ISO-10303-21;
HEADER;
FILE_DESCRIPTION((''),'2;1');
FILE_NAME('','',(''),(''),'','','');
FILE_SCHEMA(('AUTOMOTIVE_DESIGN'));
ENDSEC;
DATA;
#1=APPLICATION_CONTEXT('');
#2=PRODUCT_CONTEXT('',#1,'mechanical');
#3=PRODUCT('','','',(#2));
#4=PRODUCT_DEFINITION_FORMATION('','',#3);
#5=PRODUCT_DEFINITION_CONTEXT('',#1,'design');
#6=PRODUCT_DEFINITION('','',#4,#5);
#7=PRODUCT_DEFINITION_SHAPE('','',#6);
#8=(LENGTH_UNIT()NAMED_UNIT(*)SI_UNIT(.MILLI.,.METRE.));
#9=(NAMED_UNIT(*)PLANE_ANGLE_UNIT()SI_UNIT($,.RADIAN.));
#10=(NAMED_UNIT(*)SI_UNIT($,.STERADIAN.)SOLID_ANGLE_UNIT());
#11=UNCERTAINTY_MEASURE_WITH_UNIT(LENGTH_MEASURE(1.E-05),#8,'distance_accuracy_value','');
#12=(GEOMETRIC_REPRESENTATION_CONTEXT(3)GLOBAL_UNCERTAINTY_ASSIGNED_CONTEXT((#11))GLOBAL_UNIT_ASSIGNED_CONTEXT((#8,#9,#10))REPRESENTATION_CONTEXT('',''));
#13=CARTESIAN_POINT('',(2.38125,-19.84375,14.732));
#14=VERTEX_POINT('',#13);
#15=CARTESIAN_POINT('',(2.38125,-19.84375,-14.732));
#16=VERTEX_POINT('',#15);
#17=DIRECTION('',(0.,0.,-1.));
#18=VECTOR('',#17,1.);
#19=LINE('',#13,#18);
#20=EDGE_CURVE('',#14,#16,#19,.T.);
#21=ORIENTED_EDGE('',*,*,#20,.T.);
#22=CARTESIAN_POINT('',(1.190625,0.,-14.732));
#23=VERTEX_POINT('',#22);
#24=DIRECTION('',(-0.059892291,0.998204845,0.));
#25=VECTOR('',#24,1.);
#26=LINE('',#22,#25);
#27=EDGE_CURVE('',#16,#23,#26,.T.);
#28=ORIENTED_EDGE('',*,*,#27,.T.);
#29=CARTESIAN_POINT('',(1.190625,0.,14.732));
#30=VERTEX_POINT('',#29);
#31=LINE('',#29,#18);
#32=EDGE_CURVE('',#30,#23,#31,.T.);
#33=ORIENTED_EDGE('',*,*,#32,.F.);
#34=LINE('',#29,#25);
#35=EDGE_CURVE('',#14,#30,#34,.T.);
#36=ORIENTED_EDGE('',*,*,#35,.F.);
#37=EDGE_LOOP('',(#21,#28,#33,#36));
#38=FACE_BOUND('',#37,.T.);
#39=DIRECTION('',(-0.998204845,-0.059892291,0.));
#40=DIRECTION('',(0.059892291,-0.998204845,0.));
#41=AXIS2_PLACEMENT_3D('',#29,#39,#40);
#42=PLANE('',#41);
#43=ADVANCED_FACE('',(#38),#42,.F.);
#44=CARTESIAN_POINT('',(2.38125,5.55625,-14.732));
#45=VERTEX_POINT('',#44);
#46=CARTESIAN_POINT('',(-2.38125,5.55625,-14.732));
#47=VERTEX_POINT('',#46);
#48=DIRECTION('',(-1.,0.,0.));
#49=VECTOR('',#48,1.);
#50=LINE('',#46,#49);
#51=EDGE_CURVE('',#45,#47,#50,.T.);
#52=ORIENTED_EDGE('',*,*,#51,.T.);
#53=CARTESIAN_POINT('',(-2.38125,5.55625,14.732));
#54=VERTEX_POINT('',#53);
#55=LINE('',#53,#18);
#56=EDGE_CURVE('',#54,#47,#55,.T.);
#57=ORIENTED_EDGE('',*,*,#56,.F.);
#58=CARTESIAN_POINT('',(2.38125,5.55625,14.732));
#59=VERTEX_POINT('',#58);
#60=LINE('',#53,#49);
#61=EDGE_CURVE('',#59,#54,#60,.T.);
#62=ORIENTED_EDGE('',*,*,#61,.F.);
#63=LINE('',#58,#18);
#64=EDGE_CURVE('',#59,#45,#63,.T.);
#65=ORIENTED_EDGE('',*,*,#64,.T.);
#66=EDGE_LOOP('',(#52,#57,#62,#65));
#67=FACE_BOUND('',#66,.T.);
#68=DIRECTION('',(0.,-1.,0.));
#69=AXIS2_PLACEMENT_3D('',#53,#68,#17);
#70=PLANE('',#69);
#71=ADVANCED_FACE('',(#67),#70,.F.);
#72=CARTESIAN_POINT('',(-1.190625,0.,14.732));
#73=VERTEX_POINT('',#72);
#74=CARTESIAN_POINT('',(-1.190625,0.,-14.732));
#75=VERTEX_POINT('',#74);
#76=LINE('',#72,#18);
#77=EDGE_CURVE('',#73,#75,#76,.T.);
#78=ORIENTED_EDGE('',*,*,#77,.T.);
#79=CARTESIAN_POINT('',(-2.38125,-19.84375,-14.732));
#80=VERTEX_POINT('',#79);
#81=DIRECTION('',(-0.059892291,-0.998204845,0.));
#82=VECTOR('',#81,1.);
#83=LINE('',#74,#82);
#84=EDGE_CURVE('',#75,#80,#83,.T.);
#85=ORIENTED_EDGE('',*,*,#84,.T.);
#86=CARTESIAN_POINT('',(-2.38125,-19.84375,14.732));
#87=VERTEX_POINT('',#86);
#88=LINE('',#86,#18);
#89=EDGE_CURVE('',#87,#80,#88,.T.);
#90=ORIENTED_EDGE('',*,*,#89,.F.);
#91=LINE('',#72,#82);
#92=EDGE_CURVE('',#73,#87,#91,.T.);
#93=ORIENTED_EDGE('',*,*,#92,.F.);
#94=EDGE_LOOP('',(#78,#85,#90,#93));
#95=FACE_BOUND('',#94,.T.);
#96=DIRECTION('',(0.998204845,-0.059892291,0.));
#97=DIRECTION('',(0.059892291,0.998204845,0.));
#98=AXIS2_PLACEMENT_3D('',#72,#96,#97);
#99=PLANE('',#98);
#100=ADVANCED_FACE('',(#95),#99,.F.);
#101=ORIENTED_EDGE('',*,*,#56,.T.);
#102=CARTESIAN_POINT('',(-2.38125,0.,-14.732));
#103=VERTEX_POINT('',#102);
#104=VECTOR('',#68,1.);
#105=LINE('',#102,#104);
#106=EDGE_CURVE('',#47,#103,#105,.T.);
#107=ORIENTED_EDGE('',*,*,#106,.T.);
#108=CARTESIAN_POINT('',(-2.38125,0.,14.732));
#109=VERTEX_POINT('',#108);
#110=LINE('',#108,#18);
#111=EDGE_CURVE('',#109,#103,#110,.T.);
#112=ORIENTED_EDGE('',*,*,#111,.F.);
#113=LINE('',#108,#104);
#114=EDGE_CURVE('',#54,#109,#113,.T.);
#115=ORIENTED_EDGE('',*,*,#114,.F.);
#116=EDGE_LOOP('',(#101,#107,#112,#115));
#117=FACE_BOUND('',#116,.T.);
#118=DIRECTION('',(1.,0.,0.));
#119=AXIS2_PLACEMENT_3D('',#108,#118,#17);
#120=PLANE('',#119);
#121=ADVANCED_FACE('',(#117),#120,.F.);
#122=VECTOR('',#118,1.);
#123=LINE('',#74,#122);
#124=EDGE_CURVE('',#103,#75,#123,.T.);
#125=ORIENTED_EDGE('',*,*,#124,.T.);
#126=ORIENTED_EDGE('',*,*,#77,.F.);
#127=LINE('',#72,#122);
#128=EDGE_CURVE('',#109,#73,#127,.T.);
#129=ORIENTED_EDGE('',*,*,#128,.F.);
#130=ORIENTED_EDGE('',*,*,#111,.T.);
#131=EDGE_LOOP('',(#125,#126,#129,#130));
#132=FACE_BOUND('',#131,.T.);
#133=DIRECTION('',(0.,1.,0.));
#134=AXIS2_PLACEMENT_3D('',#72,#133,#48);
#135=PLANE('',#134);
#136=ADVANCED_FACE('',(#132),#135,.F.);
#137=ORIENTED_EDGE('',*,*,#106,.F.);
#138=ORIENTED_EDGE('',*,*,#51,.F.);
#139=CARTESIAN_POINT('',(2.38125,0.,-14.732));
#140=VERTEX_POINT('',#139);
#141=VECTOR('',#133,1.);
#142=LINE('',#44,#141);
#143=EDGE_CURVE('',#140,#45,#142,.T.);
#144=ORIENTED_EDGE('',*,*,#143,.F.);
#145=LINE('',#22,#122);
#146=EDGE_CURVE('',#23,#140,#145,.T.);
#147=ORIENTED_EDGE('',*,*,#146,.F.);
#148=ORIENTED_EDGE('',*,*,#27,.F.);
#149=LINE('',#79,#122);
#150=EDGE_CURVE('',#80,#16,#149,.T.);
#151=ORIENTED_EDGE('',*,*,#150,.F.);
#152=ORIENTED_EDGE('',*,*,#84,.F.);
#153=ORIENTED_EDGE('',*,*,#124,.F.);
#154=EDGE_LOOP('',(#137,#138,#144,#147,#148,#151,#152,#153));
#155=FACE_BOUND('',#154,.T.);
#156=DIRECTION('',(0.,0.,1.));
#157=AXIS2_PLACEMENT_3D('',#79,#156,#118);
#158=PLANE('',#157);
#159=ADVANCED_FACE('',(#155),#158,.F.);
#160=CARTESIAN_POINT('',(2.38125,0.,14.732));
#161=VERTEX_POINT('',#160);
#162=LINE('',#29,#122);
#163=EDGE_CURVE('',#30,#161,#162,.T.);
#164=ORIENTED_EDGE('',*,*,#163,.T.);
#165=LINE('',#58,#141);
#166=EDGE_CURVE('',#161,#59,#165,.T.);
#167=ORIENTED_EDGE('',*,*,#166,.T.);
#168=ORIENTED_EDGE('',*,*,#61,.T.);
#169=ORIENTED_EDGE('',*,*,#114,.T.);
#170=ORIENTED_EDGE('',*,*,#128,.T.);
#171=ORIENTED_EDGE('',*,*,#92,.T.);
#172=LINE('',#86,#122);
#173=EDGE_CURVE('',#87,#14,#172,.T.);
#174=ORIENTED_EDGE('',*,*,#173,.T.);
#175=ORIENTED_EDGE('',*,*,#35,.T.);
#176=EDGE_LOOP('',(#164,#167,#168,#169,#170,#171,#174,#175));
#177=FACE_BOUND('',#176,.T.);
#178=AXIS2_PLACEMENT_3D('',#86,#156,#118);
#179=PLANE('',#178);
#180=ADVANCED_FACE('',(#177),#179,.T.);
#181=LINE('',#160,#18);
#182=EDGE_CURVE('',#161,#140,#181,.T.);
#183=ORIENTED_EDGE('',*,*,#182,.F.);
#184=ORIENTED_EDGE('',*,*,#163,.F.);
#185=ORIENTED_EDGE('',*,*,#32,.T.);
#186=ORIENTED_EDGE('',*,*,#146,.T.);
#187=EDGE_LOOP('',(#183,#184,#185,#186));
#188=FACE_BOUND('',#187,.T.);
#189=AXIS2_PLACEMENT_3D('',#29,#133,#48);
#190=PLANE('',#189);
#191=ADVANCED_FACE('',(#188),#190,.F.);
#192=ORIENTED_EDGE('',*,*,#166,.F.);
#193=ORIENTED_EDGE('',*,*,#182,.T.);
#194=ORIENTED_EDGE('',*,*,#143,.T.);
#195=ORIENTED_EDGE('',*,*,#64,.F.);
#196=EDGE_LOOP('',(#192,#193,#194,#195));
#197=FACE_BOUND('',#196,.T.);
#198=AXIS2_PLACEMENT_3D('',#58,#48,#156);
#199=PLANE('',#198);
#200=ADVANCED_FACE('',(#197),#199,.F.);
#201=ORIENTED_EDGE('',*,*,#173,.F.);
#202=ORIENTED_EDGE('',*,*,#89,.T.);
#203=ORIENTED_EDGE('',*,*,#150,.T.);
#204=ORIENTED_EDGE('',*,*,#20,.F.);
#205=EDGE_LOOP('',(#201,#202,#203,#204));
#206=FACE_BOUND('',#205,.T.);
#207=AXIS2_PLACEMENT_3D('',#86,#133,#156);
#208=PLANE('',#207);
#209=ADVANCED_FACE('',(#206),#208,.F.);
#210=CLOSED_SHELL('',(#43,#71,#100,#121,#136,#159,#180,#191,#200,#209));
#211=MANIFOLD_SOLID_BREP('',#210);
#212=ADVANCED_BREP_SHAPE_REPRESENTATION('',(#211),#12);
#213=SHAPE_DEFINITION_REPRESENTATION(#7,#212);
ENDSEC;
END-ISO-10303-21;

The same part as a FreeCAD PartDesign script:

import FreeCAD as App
import Part
import Sketcher
from FreeCAD import Vector
Q = App.Units.Quantity


def add_polygon(sketch, points):
    """Adds a closed chain of lines whose ends are joined by coincident constraints."""
    first, n = sketch.GeometryCount, len(points)
    for a, b in zip(points, points[1:] + points[:1]):
        sketch.addGeometry(Part.LineSegment(App.Vector(*a, 0), App.Vector(*b, 0)), False)
    for i in range(n):
        sketch.addConstraint(Sketcher.Constraint("Coincident", first + i, 2, first + (i + 1) % n, 1))

doc = App.newDocument("Part")
body = doc.addObject("PartDesign::Body", "Body")

# Sketch on XY plane
sketch1 = doc.addObject("Sketcher::SketchObject", "Sketch")
body.addObject(sketch1)
sketch1.AttachmentSupport = (doc.XY_Plane, [""])
sketch1.MapMode = "FlatFace"
add_polygon(sketch1, [(-2.38125, 0), (-1.190625, 0), (-2.38125, -19.84375), (2.38125, -19.84375), (1.190625, 0), (2.38125, 0), (2.38125, 5.55625), (-2.38125, 5.55625)])  # lines 0-7
sketch1.addConstraint([
    Sketcher.Constraint("Horizontal", 0),
    Sketcher.Constraint("Horizontal", 2),
    Sketcher.Constraint("Horizontal", 4),
    Sketcher.Constraint("Vertical", 5),
    Sketcher.Constraint("Horizontal", 6),
    Sketcher.Constraint("Vertical", 7),
    Sketcher.Constraint("Symmetric", 0, 2, 3, 2, -1, 1),
    Sketcher.Constraint("Symmetric", 4, 2, 7, 2, -2),
    Sketcher.Constraint("Vertical", 2, 2, 4, 2),
    Sketcher.Constraint("Vertical", 1, 2, 6, 2),
    Sketcher.Constraint("DistanceY", 2, 2, 5, 2, Q("1 in")),
    Sketcher.Constraint("DistanceX", 0, 1, 0, 2, Q("0.046875 in")),
    Sketcher.Constraint("DistanceX", 2, 1, 2, 2, Q("0.1875 in")),
    Sketcher.Constraint("DistanceY", 5, 1, 5, 2, Q("0.21875 in")),
])
pad1 = doc.addObject("PartDesign::Pad", "Pad")
body.addObject(pad1)
pad1.Profile = sketch1
pad1.Length = Q("1.16 in")
pad1.Midplane = True

doc.recompute()
